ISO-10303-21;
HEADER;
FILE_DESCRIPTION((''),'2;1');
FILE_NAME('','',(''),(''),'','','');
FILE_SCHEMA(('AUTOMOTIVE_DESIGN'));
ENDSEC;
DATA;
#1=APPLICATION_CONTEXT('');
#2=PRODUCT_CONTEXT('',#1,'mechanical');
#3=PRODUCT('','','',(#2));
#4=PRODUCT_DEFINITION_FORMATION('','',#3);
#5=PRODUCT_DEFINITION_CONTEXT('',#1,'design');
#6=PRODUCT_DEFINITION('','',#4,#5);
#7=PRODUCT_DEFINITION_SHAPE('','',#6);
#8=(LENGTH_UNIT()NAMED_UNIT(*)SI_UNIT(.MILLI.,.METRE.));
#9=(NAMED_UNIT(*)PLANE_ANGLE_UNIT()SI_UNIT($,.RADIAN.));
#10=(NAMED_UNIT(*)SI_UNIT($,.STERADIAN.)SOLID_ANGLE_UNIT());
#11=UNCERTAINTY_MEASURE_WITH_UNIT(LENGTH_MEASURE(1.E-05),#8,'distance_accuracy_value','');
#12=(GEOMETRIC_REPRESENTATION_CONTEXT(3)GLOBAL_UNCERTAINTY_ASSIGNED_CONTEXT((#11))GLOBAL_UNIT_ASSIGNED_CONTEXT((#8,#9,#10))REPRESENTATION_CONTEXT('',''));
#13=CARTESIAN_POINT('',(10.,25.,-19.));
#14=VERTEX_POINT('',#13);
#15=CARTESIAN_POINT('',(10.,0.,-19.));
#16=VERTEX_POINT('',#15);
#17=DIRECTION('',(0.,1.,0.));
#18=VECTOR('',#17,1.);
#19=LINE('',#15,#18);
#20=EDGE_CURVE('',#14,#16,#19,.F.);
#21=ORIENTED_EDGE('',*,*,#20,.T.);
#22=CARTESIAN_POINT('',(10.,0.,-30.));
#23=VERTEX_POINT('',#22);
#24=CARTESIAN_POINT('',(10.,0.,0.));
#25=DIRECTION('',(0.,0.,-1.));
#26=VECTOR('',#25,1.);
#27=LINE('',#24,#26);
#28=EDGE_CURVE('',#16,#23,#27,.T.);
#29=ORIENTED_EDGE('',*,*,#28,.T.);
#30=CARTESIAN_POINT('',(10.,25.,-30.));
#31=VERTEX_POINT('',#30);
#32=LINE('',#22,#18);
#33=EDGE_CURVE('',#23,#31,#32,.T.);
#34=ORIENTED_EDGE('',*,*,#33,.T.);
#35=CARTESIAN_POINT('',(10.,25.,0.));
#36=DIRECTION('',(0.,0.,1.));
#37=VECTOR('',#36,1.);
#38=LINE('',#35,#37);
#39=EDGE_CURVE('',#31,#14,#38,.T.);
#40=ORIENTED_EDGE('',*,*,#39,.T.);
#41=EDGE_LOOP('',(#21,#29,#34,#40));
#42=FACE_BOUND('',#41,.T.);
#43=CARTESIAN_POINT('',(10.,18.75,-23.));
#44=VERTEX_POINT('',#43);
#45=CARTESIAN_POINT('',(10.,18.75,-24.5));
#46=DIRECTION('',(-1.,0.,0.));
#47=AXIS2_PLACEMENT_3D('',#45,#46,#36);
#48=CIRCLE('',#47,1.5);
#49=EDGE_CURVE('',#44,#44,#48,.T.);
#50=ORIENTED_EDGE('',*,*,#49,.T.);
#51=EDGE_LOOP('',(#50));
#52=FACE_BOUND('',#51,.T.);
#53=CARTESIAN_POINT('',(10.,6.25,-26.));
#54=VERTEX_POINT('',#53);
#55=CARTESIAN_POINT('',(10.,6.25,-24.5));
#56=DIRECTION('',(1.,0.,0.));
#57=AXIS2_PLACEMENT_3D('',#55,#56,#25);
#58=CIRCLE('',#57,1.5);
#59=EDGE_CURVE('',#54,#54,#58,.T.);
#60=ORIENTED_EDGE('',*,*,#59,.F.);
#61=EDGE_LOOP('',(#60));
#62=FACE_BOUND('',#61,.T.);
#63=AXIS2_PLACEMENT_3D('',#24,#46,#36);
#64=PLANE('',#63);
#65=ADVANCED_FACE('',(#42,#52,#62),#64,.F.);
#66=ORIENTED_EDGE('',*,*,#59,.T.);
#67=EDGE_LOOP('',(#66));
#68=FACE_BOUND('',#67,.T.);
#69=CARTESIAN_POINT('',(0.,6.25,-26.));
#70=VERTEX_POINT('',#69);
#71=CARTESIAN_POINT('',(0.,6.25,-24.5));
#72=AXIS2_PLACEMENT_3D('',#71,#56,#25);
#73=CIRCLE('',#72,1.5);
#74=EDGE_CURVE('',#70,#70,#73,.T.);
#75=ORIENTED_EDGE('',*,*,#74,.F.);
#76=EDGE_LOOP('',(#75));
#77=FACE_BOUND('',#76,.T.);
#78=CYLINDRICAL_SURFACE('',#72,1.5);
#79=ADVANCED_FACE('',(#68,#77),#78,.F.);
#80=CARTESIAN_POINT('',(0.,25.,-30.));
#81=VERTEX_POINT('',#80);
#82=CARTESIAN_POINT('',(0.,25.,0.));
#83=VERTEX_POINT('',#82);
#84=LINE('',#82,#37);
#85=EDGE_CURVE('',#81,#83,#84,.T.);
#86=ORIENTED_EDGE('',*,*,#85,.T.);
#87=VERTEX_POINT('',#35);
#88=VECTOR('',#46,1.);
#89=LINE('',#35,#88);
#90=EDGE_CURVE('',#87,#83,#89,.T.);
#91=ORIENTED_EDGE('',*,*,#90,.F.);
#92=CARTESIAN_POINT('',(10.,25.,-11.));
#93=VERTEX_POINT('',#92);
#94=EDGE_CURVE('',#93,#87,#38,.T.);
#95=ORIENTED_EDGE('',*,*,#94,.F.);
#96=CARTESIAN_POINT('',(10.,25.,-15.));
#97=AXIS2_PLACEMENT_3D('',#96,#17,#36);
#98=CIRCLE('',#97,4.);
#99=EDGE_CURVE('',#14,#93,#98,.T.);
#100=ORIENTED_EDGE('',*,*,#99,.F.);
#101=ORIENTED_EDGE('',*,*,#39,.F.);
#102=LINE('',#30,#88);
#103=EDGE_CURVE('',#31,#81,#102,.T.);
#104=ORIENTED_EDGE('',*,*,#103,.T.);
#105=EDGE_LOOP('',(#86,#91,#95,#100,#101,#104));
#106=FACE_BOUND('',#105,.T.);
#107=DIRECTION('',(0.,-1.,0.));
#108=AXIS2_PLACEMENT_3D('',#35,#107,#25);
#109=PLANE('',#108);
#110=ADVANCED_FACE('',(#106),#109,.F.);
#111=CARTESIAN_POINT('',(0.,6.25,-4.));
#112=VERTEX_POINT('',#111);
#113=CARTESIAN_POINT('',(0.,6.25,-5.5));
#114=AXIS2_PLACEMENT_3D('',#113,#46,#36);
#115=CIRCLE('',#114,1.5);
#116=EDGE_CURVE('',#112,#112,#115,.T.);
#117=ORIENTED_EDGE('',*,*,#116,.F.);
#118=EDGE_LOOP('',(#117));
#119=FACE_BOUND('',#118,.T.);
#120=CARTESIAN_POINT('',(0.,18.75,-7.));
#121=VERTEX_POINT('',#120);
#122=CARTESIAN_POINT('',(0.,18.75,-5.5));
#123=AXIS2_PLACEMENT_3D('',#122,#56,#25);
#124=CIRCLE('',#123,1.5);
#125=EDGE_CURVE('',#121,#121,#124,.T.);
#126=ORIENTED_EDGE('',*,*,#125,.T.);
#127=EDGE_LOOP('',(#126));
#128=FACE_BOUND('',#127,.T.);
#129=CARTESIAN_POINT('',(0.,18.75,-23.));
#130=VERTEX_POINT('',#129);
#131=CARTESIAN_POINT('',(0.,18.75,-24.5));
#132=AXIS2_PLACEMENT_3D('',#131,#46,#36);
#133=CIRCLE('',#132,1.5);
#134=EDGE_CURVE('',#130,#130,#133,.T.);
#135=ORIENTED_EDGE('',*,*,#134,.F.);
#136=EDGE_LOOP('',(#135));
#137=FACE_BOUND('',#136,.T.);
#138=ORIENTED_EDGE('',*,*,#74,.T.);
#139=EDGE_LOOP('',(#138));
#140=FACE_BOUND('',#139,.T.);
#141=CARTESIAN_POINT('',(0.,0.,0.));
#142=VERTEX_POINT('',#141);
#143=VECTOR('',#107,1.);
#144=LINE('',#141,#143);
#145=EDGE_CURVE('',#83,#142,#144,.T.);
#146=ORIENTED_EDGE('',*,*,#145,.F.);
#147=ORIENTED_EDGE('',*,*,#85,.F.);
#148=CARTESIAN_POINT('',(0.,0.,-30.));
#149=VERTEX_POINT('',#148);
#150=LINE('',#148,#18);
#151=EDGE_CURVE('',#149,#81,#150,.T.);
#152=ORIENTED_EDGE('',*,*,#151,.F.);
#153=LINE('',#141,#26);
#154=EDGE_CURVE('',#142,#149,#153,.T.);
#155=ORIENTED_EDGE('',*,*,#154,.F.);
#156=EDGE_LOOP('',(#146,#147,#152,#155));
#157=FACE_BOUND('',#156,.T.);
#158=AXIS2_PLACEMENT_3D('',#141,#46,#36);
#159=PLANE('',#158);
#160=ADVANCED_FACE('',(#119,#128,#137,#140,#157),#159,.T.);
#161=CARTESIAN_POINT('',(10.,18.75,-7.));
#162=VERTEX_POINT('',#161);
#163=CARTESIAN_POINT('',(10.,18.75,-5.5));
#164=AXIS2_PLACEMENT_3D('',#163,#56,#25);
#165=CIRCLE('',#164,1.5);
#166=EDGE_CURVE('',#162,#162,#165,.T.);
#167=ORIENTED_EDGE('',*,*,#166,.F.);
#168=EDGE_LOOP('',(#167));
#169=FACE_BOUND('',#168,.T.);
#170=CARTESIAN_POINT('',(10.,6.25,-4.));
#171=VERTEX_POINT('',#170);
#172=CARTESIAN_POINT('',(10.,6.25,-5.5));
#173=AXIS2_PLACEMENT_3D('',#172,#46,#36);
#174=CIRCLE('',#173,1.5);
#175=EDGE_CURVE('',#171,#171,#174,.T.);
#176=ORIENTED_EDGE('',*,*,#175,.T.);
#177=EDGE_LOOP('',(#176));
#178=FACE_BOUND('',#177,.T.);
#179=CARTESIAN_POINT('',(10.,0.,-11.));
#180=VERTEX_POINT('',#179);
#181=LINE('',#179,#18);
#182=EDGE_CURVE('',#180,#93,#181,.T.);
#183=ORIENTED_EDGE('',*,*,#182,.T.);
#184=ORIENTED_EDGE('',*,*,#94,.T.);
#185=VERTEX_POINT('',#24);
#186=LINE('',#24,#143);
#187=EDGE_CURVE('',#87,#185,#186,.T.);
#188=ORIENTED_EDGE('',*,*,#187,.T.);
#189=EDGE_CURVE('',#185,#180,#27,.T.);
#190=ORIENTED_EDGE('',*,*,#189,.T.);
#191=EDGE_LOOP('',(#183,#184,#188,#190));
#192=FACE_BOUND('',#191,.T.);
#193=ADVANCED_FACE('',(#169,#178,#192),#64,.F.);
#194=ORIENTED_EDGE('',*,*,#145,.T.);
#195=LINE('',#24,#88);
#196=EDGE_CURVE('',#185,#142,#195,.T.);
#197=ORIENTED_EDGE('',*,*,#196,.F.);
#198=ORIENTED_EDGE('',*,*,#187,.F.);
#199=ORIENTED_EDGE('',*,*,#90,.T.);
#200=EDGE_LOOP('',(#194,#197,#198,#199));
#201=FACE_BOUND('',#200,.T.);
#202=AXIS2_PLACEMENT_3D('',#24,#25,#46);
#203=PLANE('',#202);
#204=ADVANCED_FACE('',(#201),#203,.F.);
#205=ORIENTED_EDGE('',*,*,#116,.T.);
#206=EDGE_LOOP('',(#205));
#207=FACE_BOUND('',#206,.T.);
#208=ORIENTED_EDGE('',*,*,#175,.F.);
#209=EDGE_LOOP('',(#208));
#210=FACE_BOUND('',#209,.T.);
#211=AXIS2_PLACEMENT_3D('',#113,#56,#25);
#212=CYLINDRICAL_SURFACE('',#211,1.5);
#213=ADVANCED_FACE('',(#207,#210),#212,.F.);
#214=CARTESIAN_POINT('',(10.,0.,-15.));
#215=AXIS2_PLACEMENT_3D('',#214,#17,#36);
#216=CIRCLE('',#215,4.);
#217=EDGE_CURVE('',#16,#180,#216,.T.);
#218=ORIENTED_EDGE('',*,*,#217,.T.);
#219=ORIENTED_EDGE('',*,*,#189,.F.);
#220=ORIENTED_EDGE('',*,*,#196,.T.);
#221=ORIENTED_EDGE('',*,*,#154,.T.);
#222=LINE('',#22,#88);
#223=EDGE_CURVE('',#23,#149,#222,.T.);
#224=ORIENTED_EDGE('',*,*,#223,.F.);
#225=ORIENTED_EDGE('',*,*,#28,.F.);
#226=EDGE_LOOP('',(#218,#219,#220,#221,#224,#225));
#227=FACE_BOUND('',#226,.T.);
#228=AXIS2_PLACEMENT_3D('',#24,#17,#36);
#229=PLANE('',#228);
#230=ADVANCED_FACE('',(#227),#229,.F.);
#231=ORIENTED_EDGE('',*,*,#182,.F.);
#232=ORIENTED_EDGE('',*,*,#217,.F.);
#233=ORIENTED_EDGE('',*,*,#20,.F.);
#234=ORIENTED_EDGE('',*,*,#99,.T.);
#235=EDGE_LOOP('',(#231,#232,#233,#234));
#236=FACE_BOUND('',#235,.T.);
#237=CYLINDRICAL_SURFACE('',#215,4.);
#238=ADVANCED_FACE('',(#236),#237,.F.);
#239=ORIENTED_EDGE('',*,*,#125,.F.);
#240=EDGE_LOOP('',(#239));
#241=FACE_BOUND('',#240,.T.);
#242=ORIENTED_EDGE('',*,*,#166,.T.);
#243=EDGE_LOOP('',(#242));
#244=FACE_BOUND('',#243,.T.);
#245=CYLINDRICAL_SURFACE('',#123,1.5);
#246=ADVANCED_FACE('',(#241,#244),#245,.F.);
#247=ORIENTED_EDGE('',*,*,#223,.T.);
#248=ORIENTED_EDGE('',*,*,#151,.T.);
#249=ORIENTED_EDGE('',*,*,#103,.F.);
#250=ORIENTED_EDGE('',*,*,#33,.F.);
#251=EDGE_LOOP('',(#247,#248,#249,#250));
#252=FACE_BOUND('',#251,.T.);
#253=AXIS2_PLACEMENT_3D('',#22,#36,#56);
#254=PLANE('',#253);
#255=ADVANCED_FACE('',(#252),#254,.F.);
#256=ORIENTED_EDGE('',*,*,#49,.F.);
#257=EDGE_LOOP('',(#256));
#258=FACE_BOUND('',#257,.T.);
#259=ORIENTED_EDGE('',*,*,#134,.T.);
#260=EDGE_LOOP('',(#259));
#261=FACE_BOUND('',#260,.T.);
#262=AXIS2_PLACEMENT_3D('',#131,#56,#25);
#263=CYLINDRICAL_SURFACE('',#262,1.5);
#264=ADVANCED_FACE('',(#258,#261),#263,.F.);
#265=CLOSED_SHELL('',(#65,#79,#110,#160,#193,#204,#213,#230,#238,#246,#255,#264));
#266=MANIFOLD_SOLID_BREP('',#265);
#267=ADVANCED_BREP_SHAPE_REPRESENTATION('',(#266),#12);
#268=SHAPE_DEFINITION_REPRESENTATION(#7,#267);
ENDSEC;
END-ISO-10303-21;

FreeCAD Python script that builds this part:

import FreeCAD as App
import Part
import Sketcher

doc = App.newDocument("Part")
params = doc.addObject("Spreadsheet::Sheet", "Params")
for row, (alias, value) in enumerate([
    ("sketch1_width", "25 mm"),
    ("sketch1_height", "30 mm"),
    ("pad1_length", "10 mm"),
    ("sketch2_diameter", "8 mm"),
    ("sketch3_diameter", "3 mm"),
], start=1):
    params.set(f"A{row}", alias)
    params.set(f"B{row}", "=" + value)
    params.setAlias(f"B{row}", alias)

body = doc.addObject("PartDesign::Body", "Body")

# Sketch on YZ plane
sketch1 = doc.addObject("Sketcher::SketchObject", "Sketch")
body.addObject(sketch1)
sketch1.AttachmentSupport = (doc.YZ_Plane, [""])
sketch1.MapMode = "FlatFace"
sketch1.addGeometry([
    Part.LineSegment(App.Vector(25, 0, 0), App.Vector(0, 0, 0)),
    Part.LineSegment(App.Vector(0, 0, 0), App.Vector(0, -30, 0)),
    Part.LineSegment(App.Vector(0, -30, 0), App.Vector(25, -30, 0)),
    Part.LineSegment(App.Vector(25, -30, 0), App.Vector(25, 0, 0)),
], False)
sketch1.addConstraint([
    Sketcher.Constraint("Coincident", 0, 2, 1, 1),
    Sketcher.Constraint("Coincident", 1, 2, 2, 1),
    Sketcher.Constraint("Coincident", 2, 2, 3, 1),
    Sketcher.Constraint("Coincident", 3, 2, 0, 1),
    Sketcher.Constraint("Horizontal", 0),
    Sketcher.Constraint("Vertical", 1),
    Sketcher.Constraint("Horizontal", 2),
    Sketcher.Constraint("Vertical", 3),
    Sketcher.Constraint("Coincident", 0, 2, -1, 1),
    Sketcher.Constraint("DistanceX", 0, 2, 0, 1, 25.0),
    Sketcher.Constraint("DistanceY", 1, 2, 1, 1, 30.0),
])
sketch1.setExpression("Constraints[9]", "Params.sketch1_width")
sketch1.setExpression("Constraints[10]", "Params.sketch1_height")
pad1 = doc.addObject("PartDesign::Pad", "Pad")
body.addObject(pad1)
pad1.Profile = sketch1
pad1.setExpression("Length", "Params.pad1_length")

# Sketch on XZ plane
sketch2 = doc.addObject("Sketcher::SketchObject", "Sketch001")
body.addObject(sketch2)
sketch2.AttachmentSupport = (doc.XZ_Plane, [""])
sketch2.MapMode = "FlatFace"
sketch2.AttachmentOffset = App.Placement(App.Vector(0, 0, -25), App.Rotation())
sketch2.addGeometry(Part.Circle(App.Vector(10, -15, 0), App.Vector(0, 0, 1), 4), False)
sketch2.addConstraint([
    Sketcher.Constraint("Diameter", 0, 8.0),
    Sketcher.Constraint("DistanceX", -1, 1, 0, 3, 10.0),
    Sketcher.Constraint("DistanceY", 0, 3, -1, 1, 15.0),
])
sketch2.setExpression("Constraints[0]", "Params.sketch2_diameter")
pocket1 = doc.addObject("PartDesign::Pocket", "Pocket")
body.addObject(pocket1)
pocket1.Profile = sketch2
pocket1.Type = "ThroughAll"
pocket1.Reversed = True

# Sketch on YZ plane
sketch3 = doc.addObject("Sketcher::SketchObject", "Sketch002")
body.addObject(sketch3)
sketch3.AttachmentSupport = (doc.YZ_Plane, [""])
sketch3.MapMode = "FlatFace"
sketch3.AttachmentOffset = App.Placement(App.Vector(0, 0, 10), App.Rotation())
sketch3.addGeometry([
    Part.Circle(App.Vector(18.8, -5.5, 0), App.Vector(0, 0, 1), 1.5),
    Part.Circle(App.Vector(18.8, -24.5, 0), App.Vector(0, 0, 1), 1.5),
    Part.Circle(App.Vector(6.2, -5.5, 0), App.Vector(0, 0, 1), 1.5),
    Part.Circle(App.Vector(6.2, -24.5, 0), App.Vector(0, 0, 1), 1.5),
], False)
sketch3.addConstraint([
    Sketcher.Constraint("Equal", 0, 1),
    Sketcher.Constraint("Equal", 1, 2),
    Sketcher.Constraint("Equal", 2, 3),
    Sketcher.Constraint("Horizontal", 0, 3, 2, 3),
    Sketcher.Constraint("Horizontal", 1, 3, 3, 3),
    Sketcher.Constraint("Vertical", 0, 3, 1, 3),
    Sketcher.Constraint("Vertical", 2, 3, 3, 3),
    Sketcher.Constraint("Diameter", 0, 3.0),
    Sketcher.Constraint("DistanceY", 1, 3, 0, 3, 19.0),
    Sketcher.Constraint("DistanceY", 0, 3, -1, 1, 5.5),
    Sketcher.Constraint("DistanceX", 2, 3, 0, 3, 12.5),
    Sketcher.Constraint("DistanceX", -1, 1, 0, 3, 18.75),
])
sketch3.setExpression("Constraints[7]", "Params.sketch3_diameter")
pocket2 = doc.addObject("PartDesign::Pocket", "Pocket001")
body.addObject(pocket2)
pocket2.Profile = sketch3
pocket2.Type = "ThroughAll"

doc.recompute()
